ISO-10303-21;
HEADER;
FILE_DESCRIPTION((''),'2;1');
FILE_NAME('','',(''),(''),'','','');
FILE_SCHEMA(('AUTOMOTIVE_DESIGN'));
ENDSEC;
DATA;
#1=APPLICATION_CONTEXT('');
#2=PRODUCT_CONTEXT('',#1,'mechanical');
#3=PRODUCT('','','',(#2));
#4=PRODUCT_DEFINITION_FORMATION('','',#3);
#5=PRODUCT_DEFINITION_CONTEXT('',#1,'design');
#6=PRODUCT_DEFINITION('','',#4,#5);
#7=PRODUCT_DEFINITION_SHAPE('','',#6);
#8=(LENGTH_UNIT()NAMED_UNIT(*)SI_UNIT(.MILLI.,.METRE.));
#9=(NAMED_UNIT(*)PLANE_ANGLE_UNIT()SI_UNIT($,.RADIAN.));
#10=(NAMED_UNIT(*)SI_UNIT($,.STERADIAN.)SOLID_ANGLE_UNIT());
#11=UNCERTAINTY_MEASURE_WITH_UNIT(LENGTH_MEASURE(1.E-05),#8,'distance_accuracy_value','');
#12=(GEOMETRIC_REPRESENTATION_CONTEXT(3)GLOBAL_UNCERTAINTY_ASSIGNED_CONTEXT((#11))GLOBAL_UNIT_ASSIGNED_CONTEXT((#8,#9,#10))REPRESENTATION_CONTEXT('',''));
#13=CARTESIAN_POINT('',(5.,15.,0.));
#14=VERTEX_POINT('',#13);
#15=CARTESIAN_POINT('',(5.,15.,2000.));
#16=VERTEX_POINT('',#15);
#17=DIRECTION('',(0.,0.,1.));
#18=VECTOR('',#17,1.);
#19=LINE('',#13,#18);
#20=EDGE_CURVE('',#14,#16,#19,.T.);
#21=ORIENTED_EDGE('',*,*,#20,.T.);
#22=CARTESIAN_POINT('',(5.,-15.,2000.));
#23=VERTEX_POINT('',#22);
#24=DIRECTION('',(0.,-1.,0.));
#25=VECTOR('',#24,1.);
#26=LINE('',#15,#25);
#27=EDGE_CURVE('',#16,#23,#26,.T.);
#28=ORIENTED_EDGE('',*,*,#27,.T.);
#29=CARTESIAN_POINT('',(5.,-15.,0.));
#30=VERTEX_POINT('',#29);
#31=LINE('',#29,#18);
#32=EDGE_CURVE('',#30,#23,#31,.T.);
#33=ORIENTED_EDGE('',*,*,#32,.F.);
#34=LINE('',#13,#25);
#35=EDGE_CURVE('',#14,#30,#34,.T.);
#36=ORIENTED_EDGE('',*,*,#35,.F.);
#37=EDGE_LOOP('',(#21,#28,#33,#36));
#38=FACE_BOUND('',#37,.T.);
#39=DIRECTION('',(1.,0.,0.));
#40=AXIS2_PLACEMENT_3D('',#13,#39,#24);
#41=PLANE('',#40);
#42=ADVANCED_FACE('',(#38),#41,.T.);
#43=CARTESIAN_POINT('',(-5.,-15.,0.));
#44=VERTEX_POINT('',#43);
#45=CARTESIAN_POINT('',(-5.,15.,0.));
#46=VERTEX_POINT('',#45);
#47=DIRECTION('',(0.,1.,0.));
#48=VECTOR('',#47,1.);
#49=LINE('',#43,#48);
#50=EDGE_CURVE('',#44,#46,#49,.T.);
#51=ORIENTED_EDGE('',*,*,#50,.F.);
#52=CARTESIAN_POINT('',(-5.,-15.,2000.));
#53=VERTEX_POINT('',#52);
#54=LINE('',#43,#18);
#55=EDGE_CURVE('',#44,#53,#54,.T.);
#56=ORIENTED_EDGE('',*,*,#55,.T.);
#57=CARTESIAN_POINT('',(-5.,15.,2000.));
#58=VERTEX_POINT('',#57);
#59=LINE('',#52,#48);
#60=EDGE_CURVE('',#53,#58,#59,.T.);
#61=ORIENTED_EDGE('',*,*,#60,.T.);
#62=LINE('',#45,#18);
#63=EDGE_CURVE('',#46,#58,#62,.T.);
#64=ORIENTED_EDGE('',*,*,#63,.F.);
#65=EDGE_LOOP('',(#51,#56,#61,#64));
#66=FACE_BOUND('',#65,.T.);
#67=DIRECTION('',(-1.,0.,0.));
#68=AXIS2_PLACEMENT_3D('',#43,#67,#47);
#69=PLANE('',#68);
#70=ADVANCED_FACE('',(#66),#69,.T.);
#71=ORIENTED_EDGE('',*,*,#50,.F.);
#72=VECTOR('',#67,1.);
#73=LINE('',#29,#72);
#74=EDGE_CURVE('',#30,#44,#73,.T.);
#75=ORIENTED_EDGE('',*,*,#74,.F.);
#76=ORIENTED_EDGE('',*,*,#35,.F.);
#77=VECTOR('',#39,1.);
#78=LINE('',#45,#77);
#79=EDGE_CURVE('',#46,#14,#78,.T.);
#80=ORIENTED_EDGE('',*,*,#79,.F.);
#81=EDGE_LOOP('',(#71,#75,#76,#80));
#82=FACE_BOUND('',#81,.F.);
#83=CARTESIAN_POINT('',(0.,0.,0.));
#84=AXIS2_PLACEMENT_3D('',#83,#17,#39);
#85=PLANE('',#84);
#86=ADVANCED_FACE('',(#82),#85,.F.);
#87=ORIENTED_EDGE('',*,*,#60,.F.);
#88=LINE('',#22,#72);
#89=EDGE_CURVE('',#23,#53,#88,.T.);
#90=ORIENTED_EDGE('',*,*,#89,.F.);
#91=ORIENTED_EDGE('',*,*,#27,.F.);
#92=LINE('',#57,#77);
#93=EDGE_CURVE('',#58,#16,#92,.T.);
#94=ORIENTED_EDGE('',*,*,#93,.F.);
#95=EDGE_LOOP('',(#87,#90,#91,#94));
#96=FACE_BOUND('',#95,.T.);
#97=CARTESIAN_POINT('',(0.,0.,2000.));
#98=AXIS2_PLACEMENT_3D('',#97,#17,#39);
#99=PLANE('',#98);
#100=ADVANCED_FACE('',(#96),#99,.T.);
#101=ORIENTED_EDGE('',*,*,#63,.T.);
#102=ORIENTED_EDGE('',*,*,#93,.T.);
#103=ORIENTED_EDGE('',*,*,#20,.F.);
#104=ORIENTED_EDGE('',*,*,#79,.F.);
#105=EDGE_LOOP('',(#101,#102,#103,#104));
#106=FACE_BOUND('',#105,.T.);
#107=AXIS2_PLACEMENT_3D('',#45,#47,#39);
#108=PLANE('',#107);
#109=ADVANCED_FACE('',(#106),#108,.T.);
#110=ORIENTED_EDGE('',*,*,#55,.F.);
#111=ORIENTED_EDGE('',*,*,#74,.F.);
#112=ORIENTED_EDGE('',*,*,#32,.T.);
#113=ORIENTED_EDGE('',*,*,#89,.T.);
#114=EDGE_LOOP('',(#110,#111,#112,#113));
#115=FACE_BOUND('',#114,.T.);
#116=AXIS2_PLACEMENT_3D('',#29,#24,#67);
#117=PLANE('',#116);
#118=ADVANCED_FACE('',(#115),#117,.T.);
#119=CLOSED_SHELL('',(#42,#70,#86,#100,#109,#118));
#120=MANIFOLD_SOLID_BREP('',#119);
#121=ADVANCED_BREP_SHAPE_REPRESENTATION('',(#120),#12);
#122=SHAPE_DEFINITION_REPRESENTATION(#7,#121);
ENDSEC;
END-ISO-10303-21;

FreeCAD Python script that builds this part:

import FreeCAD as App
import Part
import Sketcher


def add_polygon(sketch, points):
    """Adds a closed chain of lines whose ends are joined by coincident constraints."""
    first, n = sketch.GeometryCount, len(points)
    for a, b in zip(points, points[1:] + points[:1]):
        sketch.addGeometry(Part.LineSegment(App.Vector(*a, 0), App.Vector(*b, 0)), False)
    for i in range(n):
        sketch.addConstraint(Sketcher.Constraint("Coincident", first + i, 2, first + (i + 1) % n, 1))

doc = App.newDocument("Part")
body = doc.addObject("PartDesign::Body", "Body")

# Sketch on XY plane
sketch1 = body.newObject("Sketcher::SketchObject", "Sketch")
sketch1.AttachmentSupport = (doc.getObject("XY_Plane"), [""])
sketch1.MapMode = "FlatFace"
add_polygon(sketch1, [(-5, -15), (5, -15), (5, 15), (-5, 15)])  # lines 0-3
sketch1.addConstraint([
    Sketcher.Constraint("Horizontal", 0),
    Sketcher.Constraint("Vertical", 1),
    Sketcher.Constraint("Horizontal", 2),
    Sketcher.Constraint("Vertical", 3),
    Sketcher.Constraint("Symmetric", 0, 2, 2, 2, -1, 1),
    Sketcher.Constraint("DistanceX", 0, 1, 0, 2, 10.0),
    Sketcher.Constraint("DistanceY", 1, 1, 1, 2, 30.0),
])
pad1 = body.newObject("PartDesign::Pad", "Pad")
pad1.Profile = sketch1
pad1.Length = 2000

doc.recompute()
